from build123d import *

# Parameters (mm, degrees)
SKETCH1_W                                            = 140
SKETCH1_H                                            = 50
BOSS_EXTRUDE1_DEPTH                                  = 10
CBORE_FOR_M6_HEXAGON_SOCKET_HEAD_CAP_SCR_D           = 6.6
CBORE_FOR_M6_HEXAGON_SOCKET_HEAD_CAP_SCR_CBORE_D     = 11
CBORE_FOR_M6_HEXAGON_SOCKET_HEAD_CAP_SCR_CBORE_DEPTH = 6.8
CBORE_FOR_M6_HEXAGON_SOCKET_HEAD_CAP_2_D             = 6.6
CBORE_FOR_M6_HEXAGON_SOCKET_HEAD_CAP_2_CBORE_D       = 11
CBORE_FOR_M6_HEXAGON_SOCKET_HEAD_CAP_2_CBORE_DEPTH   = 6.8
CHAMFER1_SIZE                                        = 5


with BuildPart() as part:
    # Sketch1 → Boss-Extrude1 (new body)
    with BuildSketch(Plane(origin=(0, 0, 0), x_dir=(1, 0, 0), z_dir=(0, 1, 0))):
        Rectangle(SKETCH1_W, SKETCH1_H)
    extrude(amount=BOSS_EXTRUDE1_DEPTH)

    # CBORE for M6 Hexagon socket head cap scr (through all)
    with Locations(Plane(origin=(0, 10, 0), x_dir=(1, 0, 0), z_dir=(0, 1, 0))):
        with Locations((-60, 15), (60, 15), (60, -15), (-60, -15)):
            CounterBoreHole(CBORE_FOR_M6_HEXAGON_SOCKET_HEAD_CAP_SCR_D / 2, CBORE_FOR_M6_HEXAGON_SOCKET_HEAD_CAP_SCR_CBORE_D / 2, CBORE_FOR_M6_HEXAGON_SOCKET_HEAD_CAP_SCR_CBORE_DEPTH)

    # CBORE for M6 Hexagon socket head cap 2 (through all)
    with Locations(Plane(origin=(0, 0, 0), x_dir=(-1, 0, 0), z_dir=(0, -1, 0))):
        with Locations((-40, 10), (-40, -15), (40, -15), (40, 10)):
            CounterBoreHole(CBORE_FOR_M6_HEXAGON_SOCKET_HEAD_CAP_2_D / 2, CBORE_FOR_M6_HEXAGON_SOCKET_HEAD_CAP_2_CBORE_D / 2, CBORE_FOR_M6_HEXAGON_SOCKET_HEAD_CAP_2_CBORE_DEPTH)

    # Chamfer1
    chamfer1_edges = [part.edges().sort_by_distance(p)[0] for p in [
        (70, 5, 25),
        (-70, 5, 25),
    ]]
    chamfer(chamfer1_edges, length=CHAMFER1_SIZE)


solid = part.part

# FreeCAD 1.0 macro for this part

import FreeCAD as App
import Part
import Sketcher

V = App.Vector


def edges_at(feature, points):
    """Names of the edges that pass closest to the given points."""
    edges = feature.Shape.Edges
    near = lambda p: min(range(len(edges)), key=lambda i: edges[i].distToShape(Part.Vertex(*p))[0])
    return sorted({f"Edge{near(p) + 1}" for p in points})


def add_polygon(sketch, points):
    """Adds a closed chain of lines whose ends are joined by coincident constraints."""
    first, n = sketch.GeometryCount, len(points)
    for a, b in zip(points, points[1:] + points[:1]):
        sketch.addGeometry(Part.LineSegment(App.Vector(*a, 0), App.Vector(*b, 0)), False)
    for i in range(n):
        sketch.addConstraint(Sketcher.Constraint("Coincident", first + i, 2, first + (i + 1) % n, 1))

doc = App.newDocument("Part")
body = doc.addObject("PartDesign::Body", "Body")

sketch1 = body.newObject("Sketcher::SketchObject", "Sketch")
sketch1.AttachmentSupport = (doc.getObject("XZ_Plane"), [""])
sketch1.MapMode = "FlatFace"
add_polygon(sketch1, [(-70, -25), (-70, 25), (70, 25), (70, -25)])
sketch1.addConstraint([
    Sketcher.Constraint("Vertical", 0),
    Sketcher.Constraint("Horizontal", 1),
    Sketcher.Constraint("Vertical", 2),
    Sketcher.Constraint("Horizontal", 3),
    Sketcher.Constraint("Symmetric", 0, 2, 2, 2, -1, 1),
    Sketcher.Constraint("DistanceX", 1, 1, 1, 2, 140.0),
    Sketcher.Constraint("DistanceY", 0, 1, 0, 2, 50.0),
])
pad1 = body.newObject("PartDesign::Pad", "Pad")
pad1.Profile = sketch1
pad1.Length = 10
pad1.Reversed = True

sketch2 = body.newObject("Sketcher::SketchObject", "Sketch001")
sketch2.AttachmentSupport = (doc.getObject("XZ_Plane"), [""])
sketch2.MapMode = "FlatFace"
sketch2.AttachmentOffset = App.Placement(V(0, 0, -10), App.Rotation())
sketch2.addGeometry([
    Part.Circle(V(-60, -15, 0), V(0, 0, 1), 3.3),
    Part.Circle(V(60, -15, 0), V(0, 0, 1), 3.3),
    Part.Circle(V(60, 15, 0), V(0, 0, 1), 3.3),
    Part.Circle(V(-60, 15, 0), V(0, 0, 1), 3.3),
], False)
sketch2.addConstraint([
    Sketcher.Constraint("Equal", 0, 1),
    Sketcher.Constraint("Equal", 1, 2),
    Sketcher.Constraint("Equal", 2, 3),
    Sketcher.Constraint("Symmetric", 0, 3, 2, 3, -1, 1),
    Sketcher.Constraint("Symmetric", 1, 3, 3, 3, -1, 1),
    Sketcher.Constraint("Symmetric", 0, 3, 1, 3, -2),
    Sketcher.Constraint("Diameter", 0, 6.6),
    Sketcher.Constraint("DistanceX", 0, 3, -1, 1, 60.0),
    Sketcher.Constraint("DistanceY", 0, 3, -1, 1, 15.0),
])
doc.recompute()
hole = body.newObject("PartDesign::Hole", "Hole")
hole.Profile = sketch2
hole.ThreadType = "None"
hole.Diameter = 6.6
hole.DepthType = "ThroughAll"
hole.HoleCutType = "Counterbore"
hole.HoleCutDiameter = 11
hole.HoleCutDepth = 6.8
hole.Reversed = True

sketch3 = body.newObject("Sketcher::SketchObject", "Sketch002")
sketch3.AttachmentSupport = (doc.getObject("XZ_Plane"), [""])
sketch3.MapMode = "FlatFace"
sketch3.addGeometry([
    Part.Circle(V(40, -10, 0), V(0, 0, 1), 3.3),
    Part.Circle(V(40, 15, 0), V(0, 0, 1), 3.3),
    Part.Circle(V(-40, 15, 0), V(0, 0, 1), 3.3),
    Part.Circle(V(-40, -10, 0), V(0, 0, 1), 3.3),
], False)
sketch3.addConstraint([
    Sketcher.Constraint("Equal", 0, 1),
    Sketcher.Constraint("Equal", 1, 2),
    Sketcher.Constraint("Equal", 2, 3),
    Sketcher.Constraint("Symmetric", 1, 3, 2, 3, -2),
    Sketcher.Constraint("Symmetric", 0, 3, 3, 3, -2),
    Sketcher.Constraint("Vertical", 0, 3, 1, 3),
    Sketcher.Constraint("Diameter", 0, 6.6),
    Sketcher.Constraint("DistanceX", -1, 1, 0, 3, 40.0),
    Sketcher.Constraint("DistanceY", 0, 3, -1, 1, 10.0),
    Sketcher.Constraint("DistanceY", -1, 1, 1, 3, 15.0),
])
doc.recompute()
hole2 = body.newObject("PartDesign::Hole", "Hole001")
hole2.Profile = sketch3
hole2.ThreadType = "None"
hole2.Diameter = 6.6
hole2.DepthType = "ThroughAll"
hole2.HoleCutType = "Counterbore"
hole2.HoleCutDiameter = 11
hole2.HoleCutDepth = 6.8
doc.recompute()

chamfer = body.newObject("PartDesign::Chamfer", "Chamfer")
chamfer.Base = (hole2, edges_at(hole2, [(70, 5, 25), (-70, 5, 25)]))
chamfer.Size = 5

doc.recompute()
